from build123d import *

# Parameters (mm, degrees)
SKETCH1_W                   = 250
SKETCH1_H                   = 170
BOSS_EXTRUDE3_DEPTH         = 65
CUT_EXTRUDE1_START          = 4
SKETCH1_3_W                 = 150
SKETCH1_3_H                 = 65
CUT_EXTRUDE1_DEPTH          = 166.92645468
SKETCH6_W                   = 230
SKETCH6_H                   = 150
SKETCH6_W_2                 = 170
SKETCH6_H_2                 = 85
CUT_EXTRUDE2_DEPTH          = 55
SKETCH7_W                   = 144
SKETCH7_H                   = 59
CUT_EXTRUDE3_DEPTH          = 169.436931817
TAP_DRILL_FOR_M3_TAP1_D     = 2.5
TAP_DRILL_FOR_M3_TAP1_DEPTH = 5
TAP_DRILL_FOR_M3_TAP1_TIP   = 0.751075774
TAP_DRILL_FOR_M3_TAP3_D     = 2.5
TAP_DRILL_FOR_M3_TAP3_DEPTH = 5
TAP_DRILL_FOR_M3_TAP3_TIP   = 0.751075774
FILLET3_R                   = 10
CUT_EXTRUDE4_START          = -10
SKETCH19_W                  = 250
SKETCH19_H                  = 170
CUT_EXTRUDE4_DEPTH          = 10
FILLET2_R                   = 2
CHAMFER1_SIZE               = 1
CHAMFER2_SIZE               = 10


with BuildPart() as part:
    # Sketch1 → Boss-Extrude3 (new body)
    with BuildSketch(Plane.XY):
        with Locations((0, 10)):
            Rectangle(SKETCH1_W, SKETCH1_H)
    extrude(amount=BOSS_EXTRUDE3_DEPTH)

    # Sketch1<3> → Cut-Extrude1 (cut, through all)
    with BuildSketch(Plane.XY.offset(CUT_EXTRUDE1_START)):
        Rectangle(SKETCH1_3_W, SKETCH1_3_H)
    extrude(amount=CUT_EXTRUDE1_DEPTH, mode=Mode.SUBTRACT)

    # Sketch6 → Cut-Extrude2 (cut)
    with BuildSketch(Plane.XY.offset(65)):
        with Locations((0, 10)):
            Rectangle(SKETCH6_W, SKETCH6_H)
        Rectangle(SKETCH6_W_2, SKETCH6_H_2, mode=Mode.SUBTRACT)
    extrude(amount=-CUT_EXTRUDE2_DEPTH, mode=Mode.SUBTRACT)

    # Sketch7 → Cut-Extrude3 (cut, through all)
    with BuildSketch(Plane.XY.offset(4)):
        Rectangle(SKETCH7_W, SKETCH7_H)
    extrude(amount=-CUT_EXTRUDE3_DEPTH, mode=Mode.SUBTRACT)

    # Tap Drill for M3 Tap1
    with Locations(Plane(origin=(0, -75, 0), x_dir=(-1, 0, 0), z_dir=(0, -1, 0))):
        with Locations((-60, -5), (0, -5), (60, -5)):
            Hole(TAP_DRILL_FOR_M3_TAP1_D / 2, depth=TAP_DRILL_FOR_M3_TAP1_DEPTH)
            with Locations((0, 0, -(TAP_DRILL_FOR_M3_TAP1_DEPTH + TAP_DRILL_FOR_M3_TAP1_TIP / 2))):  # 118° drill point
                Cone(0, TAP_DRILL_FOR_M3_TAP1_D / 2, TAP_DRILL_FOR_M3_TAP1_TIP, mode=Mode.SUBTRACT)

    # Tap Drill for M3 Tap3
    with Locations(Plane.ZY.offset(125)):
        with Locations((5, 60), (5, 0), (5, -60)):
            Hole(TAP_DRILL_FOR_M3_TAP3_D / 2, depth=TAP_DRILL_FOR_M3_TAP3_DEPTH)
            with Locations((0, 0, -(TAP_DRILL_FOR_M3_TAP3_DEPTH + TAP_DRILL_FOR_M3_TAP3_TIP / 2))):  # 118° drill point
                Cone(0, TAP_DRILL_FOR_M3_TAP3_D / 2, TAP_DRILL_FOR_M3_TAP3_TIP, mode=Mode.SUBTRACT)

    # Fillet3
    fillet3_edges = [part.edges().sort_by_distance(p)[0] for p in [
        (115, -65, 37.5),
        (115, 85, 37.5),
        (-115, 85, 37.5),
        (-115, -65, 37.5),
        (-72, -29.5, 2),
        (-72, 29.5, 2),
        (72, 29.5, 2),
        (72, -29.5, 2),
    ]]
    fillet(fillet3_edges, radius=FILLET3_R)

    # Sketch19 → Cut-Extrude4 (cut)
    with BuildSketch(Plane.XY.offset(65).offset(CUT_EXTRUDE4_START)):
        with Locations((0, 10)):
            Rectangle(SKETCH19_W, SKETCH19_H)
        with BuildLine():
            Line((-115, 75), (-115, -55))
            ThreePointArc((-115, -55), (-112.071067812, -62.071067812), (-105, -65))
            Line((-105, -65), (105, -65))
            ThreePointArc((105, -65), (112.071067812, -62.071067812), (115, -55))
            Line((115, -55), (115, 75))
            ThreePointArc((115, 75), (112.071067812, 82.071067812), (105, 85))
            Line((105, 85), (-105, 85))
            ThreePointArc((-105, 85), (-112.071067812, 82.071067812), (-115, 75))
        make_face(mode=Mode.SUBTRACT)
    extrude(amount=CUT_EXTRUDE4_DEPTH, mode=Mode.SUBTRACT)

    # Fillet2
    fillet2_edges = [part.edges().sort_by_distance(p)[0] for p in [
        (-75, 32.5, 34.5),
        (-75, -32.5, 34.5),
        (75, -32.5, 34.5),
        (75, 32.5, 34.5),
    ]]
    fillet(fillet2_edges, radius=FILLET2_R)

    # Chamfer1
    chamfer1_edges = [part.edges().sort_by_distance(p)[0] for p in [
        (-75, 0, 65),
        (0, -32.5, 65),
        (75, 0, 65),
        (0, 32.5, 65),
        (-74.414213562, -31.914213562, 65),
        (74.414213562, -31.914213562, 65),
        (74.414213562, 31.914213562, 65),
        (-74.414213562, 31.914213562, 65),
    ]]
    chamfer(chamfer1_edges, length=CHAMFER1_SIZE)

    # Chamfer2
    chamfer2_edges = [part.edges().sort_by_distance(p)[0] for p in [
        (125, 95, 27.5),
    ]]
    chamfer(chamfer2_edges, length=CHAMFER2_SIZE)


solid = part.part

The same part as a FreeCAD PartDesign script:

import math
import FreeCAD as App
import Part
import Sketcher


def edges_at(feature, points):
    """Names of the edges that pass closest to the given points."""
    edges = feature.Shape.Edges
    near = lambda p: min(range(len(edges)), key=lambda i: edges[i].distToShape(Part.Vertex(*p))[0])
    return sorted({f"Edge{near(p) + 1}" for p in points})

doc = App.newDocument("Part")
body = doc.addObject("PartDesign::Body", "Body")

# Sketch on XY plane
sketch1 = body.newObject("Sketcher::SketchObject", "Sketch")
sketch1.AttachmentSupport = (doc.getObject("XY_Plane"), [""])
sketch1.MapMode = "FlatFace"
sketch1.addGeometry([
    Part.LineSegment(App.Vector(-125, 95, 0), App.Vector(-125, -75, 0)),
    Part.LineSegment(App.Vector(-125, -75, 0), App.Vector(125, -75, 0)),
    Part.LineSegment(App.Vector(125, -75, 0), App.Vector(125, 95, 0)),
    Part.LineSegment(App.Vector(125, 95, 0), App.Vector(-125, 95, 0)),
], False)
sketch1.addConstraint([
    Sketcher.Constraint("Coincident", 0, 2, 1, 1),
    Sketcher.Constraint("Coincident", 1, 2, 2, 1),
    Sketcher.Constraint("Coincident", 2, 2, 3, 1),
    Sketcher.Constraint("Coincident", 3, 2, 0, 1),
    Sketcher.Constraint("Vertical", 0),
    Sketcher.Constraint("Horizontal", 1),
    Sketcher.Constraint("Vertical", 2),
    Sketcher.Constraint("Horizontal", 3),
    Sketcher.Constraint("DistanceX", 1, 1, 1, 2, 250.0),
    Sketcher.Constraint("DistanceY", 0, 2, 0, 1, 170.0),
    Sketcher.Constraint("DistanceX", 0, 2, -1, 1, 125.0),
    Sketcher.Constraint("DistanceY", 0, 2, -1, 1, 75.0),
])
pad1 = body.newObject("PartDesign::Pad", "Pad")
pad1.Profile = sketch1
pad1.Length = 65

# Sketch on XY plane
sketch2 = body.newObject("Sketcher::SketchObject", "Sketch001")
sketch2.AttachmentSupport = (doc.getObject("XY_Plane"), [""])
sketch2.MapMode = "FlatFace"
sketch2.AttachmentOffset = App.Placement(App.Vector(0, 0, 4), App.Rotation())
sketch2.addGeometry([
    Part.LineSegment(App.Vector(-75, 32, 0), App.Vector(-75, -32, 0)),
    Part.LineSegment(App.Vector(-75, -32, 0), App.Vector(75, -32, 0)),
    Part.LineSegment(App.Vector(75, -32, 0), App.Vector(75, 32, 0)),
    Part.LineSegment(App.Vector(75, 32, 0), App.Vector(-75, 32, 0)),
], False)
sketch2.addConstraint([
    Sketcher.Constraint("Coincident", 0, 2, 1, 1),
    Sketcher.Constraint("Coincident", 1, 2, 2, 1),
    Sketcher.Constraint("Coincident", 2, 2, 3, 1),
    Sketcher.Constraint("Coincident", 3, 2, 0, 1),
    Sketcher.Constraint("Vertical", 0),
    Sketcher.Constraint("Horizontal", 1),
    Sketcher.Constraint("Vertical", 2),
    Sketcher.Constraint("Horizontal", 3),
    Sketcher.Constraint("Symmetric", 0, 2, 2, 2, -1, 1),
    Sketcher.Constraint("DistanceX", 1, 1, 1, 2, 150.0),
    Sketcher.Constraint("DistanceY", 0, 2, 0, 1, 65.0),
])
pocket1 = body.newObject("PartDesign::Pocket", "Pocket")
pocket1.Profile = sketch2
pocket1.Type = "ThroughAll"
pocket1.Reversed = True

# Sketch on XY plane
sketch3 = body.newObject("Sketcher::SketchObject", "Sketch002")
sketch3.AttachmentSupport = (doc.getObject("XY_Plane"), [""])
sketch3.MapMode = "FlatFace"
sketch3.AttachmentOffset = App.Placement(App.Vector(0, 0, 65), App.Rotation())
sketch3.addGeometry([
    Part.LineSegment(App.Vector(-115, 85, 0), App.Vector(-115, -65, 0)),  # 0
    Part.LineSegment(App.Vector(-115, -65, 0), App.Vector(115, -65, 0)),  # 1
    Part.LineSegment(App.Vector(115, -65, 0), App.Vector(115, 85, 0)),  # 2
    Part.LineSegment(App.Vector(115, 85, 0), App.Vector(-115, 85, 0)),  # 3
    Part.LineSegment(App.Vector(85, -42, 0), App.Vector(-85, -42, 0)),  # 4
    Part.LineSegment(App.Vector(-85, -42, 0), App.Vector(-85, 42, 0)),  # 5
    Part.LineSegment(App.Vector(-85, 42, 0), App.Vector(85, 42, 0)),  # 6
    Part.LineSegment(App.Vector(85, 42, 0), App.Vector(85, -42, 0)),  # 7
], False)
sketch3.addConstraint([
    Sketcher.Constraint("Coincident", 0, 2, 1, 1),
    Sketcher.Constraint("Coincident", 1, 2, 2, 1),
    Sketcher.Constraint("Coincident", 2, 2, 3, 1),
    Sketcher.Constraint("Coincident", 3, 2, 0, 1),
    Sketcher.Constraint("Coincident", 4, 2, 5, 1),
    Sketcher.Constraint("Coincident", 5, 2, 6, 1),
    Sketcher.Constraint("Coincident", 6, 2, 7, 1),
    Sketcher.Constraint("Coincident", 7, 2, 4, 1),
    Sketcher.Constraint("Vertical", 0),
    Sketcher.Constraint("Horizontal", 1),
    Sketcher.Constraint("Vertical", 2),
    Sketcher.Constraint("Horizontal", 3),
    Sketcher.Constraint("Horizontal", 4),
    Sketcher.Constraint("Vertical", 5),
    Sketcher.Constraint("Horizontal", 6),
    Sketcher.Constraint("Vertical", 7),
    Sketcher.Constraint("Symmetric", 4, 2, 6, 2, -1, 1),
    Sketcher.Constraint("DistanceX", 1, 1, 1, 2, 230.0),
    Sketcher.Constraint("DistanceX", 4, 2, 4, 1, 170.0),
    Sketcher.Constraint("DistanceY", 0, 2, 0, 1, 150.0),
    Sketcher.Constraint("DistanceY", 5, 1, 5, 2, 85.0),
    Sketcher.Constraint("DistanceX", 0, 2, -1, 1, 115.0),
    Sketcher.Constraint("DistanceY", 0, 2, -1, 1, 65.0),
])
pocket2 = body.newObject("PartDesign::Pocket", "Pocket001")
pocket2.Profile = sketch3
pocket2.Length = 55

# Sketch on XY plane
sketch4 = body.newObject("Sketcher::SketchObject", "Sketch003")
sketch4.AttachmentSupport = (doc.getObject("XY_Plane"), [""])
sketch4.MapMode = "FlatFace"
sketch4.AttachmentOffset = App.Placement(App.Vector(0, 0, 4), App.Rotation())
sketch4.addGeometry([
    Part.LineSegment(App.Vector(-72, 30, 0), App.Vector(-72, -30, 0)),
    Part.LineSegment(App.Vector(-72, -30, 0), App.Vector(72, -30, 0)),
    Part.LineSegment(App.Vector(72, -30, 0), App.Vector(72, 30, 0)),
    Part.LineSegment(App.Vector(72, 30, 0), App.Vector(-72, 30, 0)),
], False)
sketch4.addConstraint([
    Sketcher.Constraint("Coincident", 0, 2, 1, 1),
    Sketcher.Constraint("Coincident", 1, 2, 2, 1),
    Sketcher.Constraint("Coincident", 2, 2, 3, 1),
    Sketcher.Constraint("Coincident", 3, 2, 0, 1),
    Sketcher.Constraint("Vertical", 0),
    Sketcher.Constraint("Horizontal", 1),
    Sketcher.Constraint("Vertical", 2),
    Sketcher.Constraint("Horizontal", 3),
    Sketcher.Constraint("Symmetric", 0, 2, 2, 2, -1, 1),
    Sketcher.Constraint("DistanceX", 1, 1, 1, 2, 144.0),
    Sketcher.Constraint("DistanceY", 0, 2, 0, 1, 59.0),
])
pocket3 = body.newObject("PartDesign::Pocket", "Pocket002")
pocket3.Profile = sketch4
pocket3.Type = "ThroughAll"

# Sketch on XZ plane
sketch5 = body.newObject("Sketcher::SketchObject", "Sketch004")
sketch5.AttachmentSupport = (doc.getObject("XZ_Plane"), [""])
sketch5.MapMode = "FlatFace"
sketch5.AttachmentOffset = App.Placement(App.Vector(0, 0, 75), App.Rotation())
sketch5.addGeometry([
    Part.Circle(App.Vector(60, 5, 0), App.Vector(0, 0, 1), 1.2),
    Part.Circle(App.Vector(0, 5, 0), App.Vector(0, 0, 1), 1.2),
    Part.Circle(App.Vector(-60, 5, 0), App.Vector(0, 0, 1), 1.2),
], False)
sketch5.addConstraint([
    Sketcher.Constraint("Equal", 0, 1),
    Sketcher.Constraint("Equal", 1, 2),
    Sketcher.Constraint("Symmetric", 0, 3, 2, 3, -2),
    Sketcher.Constraint("PointOnObject", 1, 3, -2),
    Sketcher.Constraint("Horizontal", 0, 3, 1, 3),
    Sketcher.Constraint("Diameter", 0, 2.5),
    Sketcher.Constraint("DistanceX", -1, 1, 0, 3, 60.0),
    Sketcher.Constraint("DistanceY", -1, 1, 0, 3, 5.0),
])
doc.recompute()
hole = body.newObject("PartDesign::Hole", "Hole")
hole.Profile = sketch5
hole.ThreadType = "None"
hole.Diameter = 2.5
hole.DepthType = "Dimension"
hole.Depth = 5
hole.DrillPoint = "Angled"
hole.DrillPointAngle = 118

# Sketch on YZ plane
sketch6 = body.newObject("Sketcher::SketchObject", "Sketch005")
sketch6.AttachmentSupport = (doc.getObject("YZ_Plane"), [""])
sketch6.MapMode = "FlatFace"
sketch6.AttachmentOffset = App.Placement(App.Vector(0, 0, -125), App.Rotation())
sketch6.addGeometry([
    Part.Circle(App.Vector(60, 5, 0), App.Vector(0, 0, 1), 1.2),
    Part.Circle(App.Vector(0, 5, 0), App.Vector(0, 0, 1), 1.2),
    Part.Circle(App.Vector(-60, 5, 0), App.Vector(0, 0, 1), 1.2),
], False)
sketch6.addConstraint([
    Sketcher.Constraint("Equal", 0, 1),
    Sketcher.Constraint("Equal", 1, 2),
    Sketcher.Constraint("Symmetric", 0, 3, 2, 3, -2),
    Sketcher.Constraint("PointOnObject", 1, 3, -2),
    Sketcher.Constraint("Horizontal", 0, 3, 1, 3),
    Sketcher.Constraint("Diameter", 0, 2.5),
    Sketcher.Constraint("DistanceX", -1, 1, 0, 3, 60.0),
    Sketcher.Constraint("DistanceY", -1, 1, 0, 3, 5.0),
])
doc.recompute()
hole2 = body.newObject("PartDesign::Hole", "Hole001")
hole2.Profile = sketch6
hole2.ThreadType = "None"
hole2.Diameter = 2.5
hole2.DepthType = "Dimension"
hole2.Depth = 5
hole2.DrillPoint = "Angled"
hole2.DrillPointAngle = 118
hole2.Reversed = True
doc.recompute()

fillet = body.newObject("PartDesign::Fillet", "Fillet")
fillet.Base = (hole2, edges_at(hole2, [
    (115, -65, 37.5),
    (115, 85, 37.5),
    (-115, 85, 37.5),
    (-115, -65, 37.5),
    (-72, -29.5, 2),
    (-72, 29.5, 2),
    (72, 29.5, 2),
    (72, -29.5, 2),
]))
fillet.Radius = 10

# Sketch on XY plane
sketch7 = body.newObject("Sketcher::SketchObject", "Sketch006")
sketch7.AttachmentSupport = (doc.getObject("XY_Plane"), [""])
sketch7.MapMode = "FlatFace"
sketch7.AttachmentOffset = App.Placement(App.Vector(0, 0, 55), App.Rotation())
sketch7.addGeometry([
    Part.LineSegment(App.Vector(-125, 95, 0), App.Vector(-125, -75, 0)),  # 0
    Part.LineSegment(App.Vector(-125, -75, 0), App.Vector(125, -75, 0)),  # 1
    Part.LineSegment(App.Vector(125, -75, 0), App.Vector(125, 95, 0)),  # 2
    Part.LineSegment(App.Vector(125, 95, 0), App.Vector(-125, 95, 0)),  # 3
    Part.LineSegment(App.Vector(-115, -55, 0), App.Vector(-115, 75, 0)),  # 4
    Part.ArcOfCircle(Part.Circle(App.Vector(-105, 75, 0), App.Vector(0, 0, 1), 10), math.radians(90), math.radians(180)),  # 5
    Part.LineSegment(App.Vector(-105, 85, 0), App.Vector(105, 85, 0)),  # 6
    Part.ArcOfCircle(Part.Circle(App.Vector(105, 75, 0), App.Vector(0, 0, 1), 10), math.radians(0), math.radians(90)),  # 7
    Part.LineSegment(App.Vector(115, 75, 0), App.Vector(115, -55, 0)),  # 8
    Part.ArcOfCircle(Part.Circle(App.Vector(105, -55, 0), App.Vector(0, 0, 1), 10), math.radians(-90), math.radians(0)),  # 9
    Part.LineSegment(App.Vector(105, -65, 0), App.Vector(-105, -65, 0)),  # 10
    Part.ArcOfCircle(Part.Circle(App.Vector(-105, -55, 0), App.Vector(0, 0, 1), 10), math.radians(180), math.radians(270)),  # 11
], False)
sketch7.addConstraint([
    Sketcher.Constraint("Coincident", 0, 2, 1, 1),
    Sketcher.Constraint("Coincident", 1, 2, 2, 1),
    Sketcher.Constraint("Coincident", 2, 2, 3, 1),
    Sketcher.Constraint("Coincident", 3, 2, 0, 1),
    Sketcher.Constraint("Tangent", 4, 2, 5, 2),
    Sketcher.Constraint("Tangent", 5, 1, 6, 1),
    Sketcher.Constraint("Tangent", 6, 2, 7, 2),
    Sketcher.Constraint("Tangent", 7, 1, 8, 1),
    Sketcher.Constraint("Tangent", 8, 2, 9, 2),
    Sketcher.Constraint("Tangent", 9, 1, 10, 1),
    Sketcher.Constraint("Tangent", 10, 2, 11, 2),
    Sketcher.Constraint("Tangent", 11, 1, 4, 1),
    Sketcher.Constraint("Vertical", 0),
    Sketcher.Constraint("Horizontal", 1),
    Sketcher.Constraint("Vertical", 2),
    Sketcher.Constraint("Horizontal", 3),
    Sketcher.Constraint("Vertical", 4),
    Sketcher.Constraint("Horizontal", 6),
    Sketcher.Constraint("Vertical", 8),
    Sketcher.Constraint("Horizontal", 10),
    Sketcher.Constraint("Equal", 5, 7),
    Sketcher.Constraint("Equal", 7, 9),
    Sketcher.Constraint("Equal", 9, 11),
    Sketcher.Constraint("Radius", 5, 10.0),
    Sketcher.Constraint("DistanceX", 1, 1, 1, 2, 250.0),
    Sketcher.Constraint("DistanceX", 6, 1, 6, 2, 210.0),
    Sketcher.Constraint("DistanceY", 0, 2, 0, 1, 170.0),
    Sketcher.Constraint("DistanceY", 4, 1, 4, 2, 130.0),
    Sketcher.Constraint("DistanceX", 5, 3, -1, 1, 105.0),
    Sketcher.Constraint("DistanceY", -1, 1, 5, 3, 75.0),
    Sketcher.Constraint("DistanceX", 0, 2, -1, 1, 125.0),
    Sketcher.Constraint("DistanceY", 0, 2, -1, 1, 75.0),
])
pocket4 = body.newObject("PartDesign::Pocket", "Pocket003")
pocket4.Profile = sketch7
pocket4.Length = 10
pocket4.Reversed = True
doc.recompute()

fillet2 = body.newObject("PartDesign::Fillet", "Fillet001")
fillet2.Base = (pocket4, edges_at(pocket4, [
    (-75, 32.5, 34.5),
    (-75, -32.5, 34.5),
    (75, -32.5, 34.5),
    (75, 32.5, 34.5),
]))
fillet2.Radius = 2
doc.recompute()

chamfer = body.newObject("PartDesign::Chamfer", "Chamfer")
chamfer.Base = (fillet2, edges_at(fillet2, [
    (-75, 0, 65),
    (0, -32.5, 65),
    (75, 0, 65),
    (0, 32.5, 65),
    (-74.414, -31.914, 65),
    (74.414, -31.914, 65),
    (74.414, 31.914, 65),
    (-74.414, 31.914, 65),
]))
chamfer.Size = 1
doc.recompute()

chamfer2 = body.newObject("PartDesign::Chamfer", "Chamfer001")
chamfer2.Base = (chamfer, edges_at(chamfer, [(125, 95, 27.5)]))
chamfer2.Size = 10

doc.recompute()
